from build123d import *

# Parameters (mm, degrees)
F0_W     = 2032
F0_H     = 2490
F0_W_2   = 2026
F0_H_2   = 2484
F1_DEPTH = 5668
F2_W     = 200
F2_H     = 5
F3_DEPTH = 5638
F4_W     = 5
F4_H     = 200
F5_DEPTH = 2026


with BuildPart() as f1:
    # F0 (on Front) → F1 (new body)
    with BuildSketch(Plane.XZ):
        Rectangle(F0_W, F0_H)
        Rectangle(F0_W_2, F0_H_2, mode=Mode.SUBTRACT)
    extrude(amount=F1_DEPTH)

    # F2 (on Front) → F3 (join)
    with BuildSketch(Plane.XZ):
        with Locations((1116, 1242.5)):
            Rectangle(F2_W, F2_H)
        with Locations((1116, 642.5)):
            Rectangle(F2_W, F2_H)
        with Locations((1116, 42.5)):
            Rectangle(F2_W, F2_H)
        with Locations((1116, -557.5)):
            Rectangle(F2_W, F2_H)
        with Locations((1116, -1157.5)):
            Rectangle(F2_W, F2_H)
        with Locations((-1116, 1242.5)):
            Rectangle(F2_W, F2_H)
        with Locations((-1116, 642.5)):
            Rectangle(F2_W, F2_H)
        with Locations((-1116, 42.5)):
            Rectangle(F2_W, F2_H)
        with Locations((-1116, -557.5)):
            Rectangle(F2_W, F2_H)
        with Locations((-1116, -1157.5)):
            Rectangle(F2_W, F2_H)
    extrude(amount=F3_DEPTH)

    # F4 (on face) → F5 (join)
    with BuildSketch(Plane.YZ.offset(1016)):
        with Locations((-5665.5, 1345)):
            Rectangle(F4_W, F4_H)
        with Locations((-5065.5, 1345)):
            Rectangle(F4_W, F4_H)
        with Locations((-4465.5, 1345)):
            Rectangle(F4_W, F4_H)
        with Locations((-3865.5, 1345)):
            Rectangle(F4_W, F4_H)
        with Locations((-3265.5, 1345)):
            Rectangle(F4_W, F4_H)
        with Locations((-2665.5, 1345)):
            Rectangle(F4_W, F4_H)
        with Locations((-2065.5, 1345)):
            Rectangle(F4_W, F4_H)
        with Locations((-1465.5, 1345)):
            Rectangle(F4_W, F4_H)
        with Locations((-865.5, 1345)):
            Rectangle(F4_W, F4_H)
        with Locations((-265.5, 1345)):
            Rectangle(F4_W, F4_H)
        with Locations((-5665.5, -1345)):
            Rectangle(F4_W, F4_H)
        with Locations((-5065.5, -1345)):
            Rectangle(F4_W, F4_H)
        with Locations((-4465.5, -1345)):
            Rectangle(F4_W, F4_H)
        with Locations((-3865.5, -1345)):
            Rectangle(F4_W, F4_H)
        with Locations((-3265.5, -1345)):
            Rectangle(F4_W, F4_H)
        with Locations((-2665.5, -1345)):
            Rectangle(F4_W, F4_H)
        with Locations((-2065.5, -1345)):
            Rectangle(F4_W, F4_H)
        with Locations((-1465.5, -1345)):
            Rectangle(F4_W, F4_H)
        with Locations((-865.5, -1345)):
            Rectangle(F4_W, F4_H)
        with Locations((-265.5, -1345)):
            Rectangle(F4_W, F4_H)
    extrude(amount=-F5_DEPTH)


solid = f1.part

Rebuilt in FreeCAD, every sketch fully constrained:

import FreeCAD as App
import Part
import Sketcher
Q = App.Units.Quantity


def add_polygon(sketch, points):
    """Adds a closed chain of lines whose ends are joined by coincident constraints."""
    first, n = sketch.GeometryCount, len(points)
    for a, b in zip(points, points[1:] + points[:1]):
        sketch.addGeometry(Part.LineSegment(App.Vector(*a, 0), App.Vector(*b, 0)), False)
    for i in range(n):
        sketch.addConstraint(Sketcher.Constraint("Coincident", first + i, 2, first + (i + 1) % n, 1))

doc = App.newDocument("Part")
body = doc.addObject("PartDesign::Body", "Body")

sketch1 = doc.addObject("Sketcher::SketchObject", "Sketch")
body.addObject(sketch1)
sketch1.AttachmentSupport = (doc.XZ_Plane, [""])
sketch1.MapMode = "FlatFace"
add_polygon(sketch1, [(-1016, 1245), (-1016, -1245), (1016, -1245), (1016, 1245)])
add_polygon(sketch1, [(1013, -1242), (-1013, -1242), (-1013, 1242), (1013, 1242)])
sketch1.addConstraint([
    Sketcher.Constraint("Vertical", 0),
    Sketcher.Constraint("Horizontal", 1),
    Sketcher.Constraint("Vertical", 2),
    Sketcher.Constraint("Horizontal", 3),
    Sketcher.Constraint("Horizontal", 4),
    Sketcher.Constraint("Vertical", 5),
    Sketcher.Constraint("Horizontal", 6),
    Sketcher.Constraint("Vertical", 7),
    Sketcher.Constraint("Symmetric", 0, 2, 2, 2, -1, 1),
    Sketcher.Constraint("Symmetric", 4, 2, 6, 2, -1, 1),
    Sketcher.Constraint("DistanceX", 1, 1, 1, 2, Q("2032 mm")),
    Sketcher.Constraint("DistanceX", 4, 2, 4, 1, Q("2026 mm")),
    Sketcher.Constraint("DistanceY", 0, 2, 0, 1, Q("2490 mm")),
    Sketcher.Constraint("DistanceY", 5, 1, 5, 2, Q("2484 mm")),
])
pad1 = doc.addObject("PartDesign::Pad", "Pad")
body.addObject(pad1)
pad1.Profile = sketch1
pad1.Length = 5668

sketch2 = doc.addObject("Sketcher::SketchObject", "Sketch001")
body.addObject(sketch2)
sketch2.AttachmentSupport = (doc.XZ_Plane, [""])
sketch2.MapMode = "FlatFace"
add_polygon(sketch2, [(1016, 1245), (1016, 1240), (1216, 1240), (1216, 1245)])
add_polygon(sketch2, [(1016, 645), (1016, 640), (1216, 640), (1216, 645)])
add_polygon(sketch2, [(1016, 45), (1016, 40), (1216, 40), (1216, 45)])
add_polygon(sketch2, [(1016, -555), (1016, -560), (1216, -560), (1216, -555)])
add_polygon(sketch2, [(1016, -1155), (1016, -1160), (1216, -1160), (1216, -1155)])
add_polygon(sketch2, [(-1216, 1245), (-1216, 1240), (-1016, 1240), (-1016, 1245)])
add_polygon(sketch2, [(-1216, 645), (-1216, 640), (-1016, 640), (-1016, 645)])
add_polygon(sketch2, [(-1216, 45), (-1216, 40), (-1016, 40), (-1016, 45)])
add_polygon(sketch2, [(-1216, -555), (-1216, -560), (-1016, -560), (-1016, -555)])
add_polygon(sketch2, [(-1216, -1155), (-1216, -1160), (-1016, -1160), (-1016, -1155)])
sketch2.addConstraint([
    Sketcher.Constraint("Vertical", 0),
    Sketcher.Constraint("Horizontal", 1),
    Sketcher.Constraint("Vertical", 2),
    Sketcher.Constraint("Horizontal", 3),
    Sketcher.Constraint("Vertical", 4),
    Sketcher.Constraint("Horizontal", 5),
    Sketcher.Constraint("Vertical", 6),
    Sketcher.Constraint("Horizontal", 7),
    Sketcher.Constraint("Vertical", 8),
    Sketcher.Constraint("Horizontal", 9),
    Sketcher.Constraint("Vertical", 10),
    Sketcher.Constraint("Horizontal", 11),
    Sketcher.Constraint("Vertical", 12),
    Sketcher.Constraint("Horizontal", 13),
    Sketcher.Constraint("Vertical", 14),
    Sketcher.Constraint("Horizontal", 15),
    Sketcher.Constraint("Vertical", 16),
    Sketcher.Constraint("Horizontal", 17),
    Sketcher.Constraint("Vertical", 18),
    Sketcher.Constraint("Horizontal", 19),
    Sketcher.Constraint("Vertical", 20),
    Sketcher.Constraint("Horizontal", 21),
    Sketcher.Constraint("Vertical", 22),
    Sketcher.Constraint("Horizontal", 23),
    Sketcher.Constraint("Vertical", 24),
    Sketcher.Constraint("Horizontal", 25),
    Sketcher.Constraint("Vertical", 26),
    Sketcher.Constraint("Horizontal", 27),
    Sketcher.Constraint("Vertical", 28),
    Sketcher.Constraint("Horizontal", 29),
    Sketcher.Constraint("Vertical", 30),
    Sketcher.Constraint("Horizontal", 31),
    Sketcher.Constraint("Vertical", 32),
    Sketcher.Constraint("Horizontal", 33),
    Sketcher.Constraint("Vertical", 34),
    Sketcher.Constraint("Horizontal", 35),
    Sketcher.Constraint("Vertical", 36),
    Sketcher.Constraint("Horizontal", 37),
    Sketcher.Constraint("Vertical", 38),
    Sketcher.Constraint("Horizontal", 39),
    Sketcher.Constraint("Symmetric", 1, 2, 20, 2, -2),
    Sketcher.Constraint("Symmetric", 3, 2, 22, 2, -2),
    Sketcher.Constraint("Symmetric", 5, 2, 24, 2, -2),
    Sketcher.Constraint("Symmetric", 7, 2, 26, 2, -2),
    Sketcher.Constraint("Symmetric", 9, 2, 28, 2, -2),
    Sketcher.Constraint("Symmetric", 11, 2, 30, 2, -2),
    Sketcher.Constraint("Symmetric", 13, 2, 32, 2, -2),
    Sketcher.Constraint("Symmetric", 15, 2, 34, 2, -2),
    Sketcher.Constraint("Symmetric", 17, 2, 36, 2, -2),
    Sketcher.Constraint("Symmetric", 19, 2, 38, 2, -2),
    Sketcher.Constraint("Vertical", 3, 2, 4, 2),
    Sketcher.Constraint("Vertical", 2, 2, 5, 2),
    Sketcher.Constraint("Vertical", 7, 2, 8, 2),
    Sketcher.Constraint("Vertical", 6, 2, 9, 2),
    Sketcher.Constraint("Vertical", 11, 2, 12, 2),
    Sketcher.Constraint("Vertical", 10, 2, 13, 2),
    Sketcher.Constraint("Vertical", 15, 2, 16, 2),
    Sketcher.Constraint("Vertical", 14, 2, 17, 2),
    Sketcher.Constraint("Equal", 2, 4),
    Sketcher.Constraint("Equal", 6, 8),
    Sketcher.Constraint("Equal", 10, 12),
    Sketcher.Constraint("Equal", 14, 16),
    Sketcher.Constraint("DistanceX", 1, 1, 1, 2, Q("200 mm")),
    Sketcher.Constraint("DistanceY", 0, 2, 0, 1, Q("5 mm")),
    Sketcher.Constraint("DistanceX", -1, 1, 0, 2, Q("1016 mm")),
    Sketcher.Constraint("DistanceY", -1, 1, 0, 2, Q("1240 mm")),
    Sketcher.Constraint("DistanceY", -1, 1, 4, 2, Q("640 mm")),
    Sketcher.Constraint("DistanceY", -1, 1, 8, 2, Q("40 mm")),
    Sketcher.Constraint("DistanceY", 12, 2, -1, 1, Q("560 mm")),
    Sketcher.Constraint("DistanceY", 16, 2, -1, 1, Q("1160 mm")),
])
pad2 = doc.addObject("PartDesign::Pad", "Pad001")
body.addObject(pad2)
pad2.Profile = sketch2
pad2.Length = 5638

sketch3 = doc.addObject("Sketcher::SketchObject", "Sketch002")
body.addObject(sketch3)
sketch3.AttachmentSupport = (doc.YZ_Plane, [""])
sketch3.MapMode = "FlatFace"
sketch3.AttachmentOffset = App.Placement(App.Vector(0, 0, 1016), App.Rotation())
add_polygon(sketch3, [(-5668, 1445), (-5668, 1245), (-5663, 1245), (-5663, 1445)])
add_polygon(sketch3, [(-5068, 1445), (-5068, 1245), (-5063, 1245), (-5063, 1445)])
add_polygon(sketch3, [(-4468, 1445), (-4468, 1245), (-4463, 1245), (-4463, 1445)])
add_polygon(sketch3, [(-3868, 1445), (-3868, 1245), (-3863, 1245), (-3863, 1445)])
add_polygon(sketch3, [(-3268, 1445), (-3268, 1245), (-3263, 1245), (-3263, 1445)])
add_polygon(sketch3, [(-2668, 1445), (-2668, 1245), (-2663, 1245), (-2663, 1445)])
add_polygon(sketch3, [(-2068, 1445), (-2068, 1245), (-2063, 1245), (-2063, 1445)])
add_polygon(sketch3, [(-1468, 1445), (-1468, 1245), (-1463, 1245), (-1463, 1445)])
add_polygon(sketch3, [(-868, 1445), (-868, 1245), (-863, 1245), (-863, 1445)])
add_polygon(sketch3, [(-268, 1445), (-268, 1245), (-263, 1245), (-263, 1445)])
add_polygon(sketch3, [(-5668, -1245), (-5668, -1445), (-5663, -1445), (-5663, -1245)])
add_polygon(sketch3, [(-5068, -1245), (-5068, -1445), (-5063, -1445), (-5063, -1245)])
add_polygon(sketch3, [(-4468, -1245), (-4468, -1445), (-4463, -1445), (-4463, -1245)])
add_polygon(sketch3, [(-3868, -1245), (-3868, -1445), (-3863, -1445), (-3863, -1245)])
add_polygon(sketch3, [(-3268, -1245), (-3268, -1445), (-3263, -1445), (-3263, -1245)])
add_polygon(sketch3, [(-2668, -1245), (-2668, -1445), (-2663, -1445), (-2663, -1245)])
add_polygon(sketch3, [(-2068, -1245), (-2068, -1445), (-2063, -1445), (-2063, -1245)])
add_polygon(sketch3, [(-1468, -1245), (-1468, -1445), (-1463, -1445), (-1463, -1245)])
add_polygon(sketch3, [(-868, -1245), (-868, -1445), (-863, -1445), (-863, -1245)])
add_polygon(sketch3, [(-268, -1245), (-268, -1445), (-263, -1445), (-263, -1245)])
sketch3.addConstraint([
    Sketcher.Constraint("Vertical", 0),
    Sketcher.Constraint("Horizontal", 1),
    Sketcher.Constraint("Vertical", 2),
    Sketcher.Constraint("Horizontal", 3),
    Sketcher.Constraint("Vertical", 4),
    Sketcher.Constraint("Horizontal", 5),
    Sketcher.Constraint("Vertical", 6),
    Sketcher.Constraint("Horizontal", 7),
    Sketcher.Constraint("Vertical", 8),
    Sketcher.Constraint("Horizontal", 9),
    Sketcher.Constraint("Vertical", 10),
    Sketcher.Constraint("Horizontal", 11),
    Sketcher.Constraint("Vertical", 12),
    Sketcher.Constraint("Horizontal", 13),
    Sketcher.Constraint("Vertical", 14),
    Sketcher.Constraint("Horizontal", 15),
    Sketcher.Constraint("Vertical", 16),
    Sketcher.Constraint("Horizontal", 17),
    Sketcher.Constraint("Vertical", 18),
    Sketcher.Constraint("Horizontal", 19),
    Sketcher.Constraint("Vertical", 20),
    Sketcher.Constraint("Horizontal", 21),
    Sketcher.Constraint("Vertical", 22),
    Sketcher.Constraint("Horizontal", 23),
    Sketcher.Constraint("Vertical", 24),
    Sketcher.Constraint("Horizontal", 25),
    Sketcher.Constraint("Vertical", 26),
    Sketcher.Constraint("Horizontal", 27),
    Sketcher.Constraint("Vertical", 28),
    Sketcher.Constraint("Horizontal", 29),
    Sketcher.Constraint("Vertical", 30),
    Sketcher.Constraint("Horizontal", 31),
    Sketcher.Constraint("Vertical", 32),
    Sketcher.Constraint("Horizontal", 33),
    Sketcher.Constraint("Vertical", 34),
    Sketcher.Constraint("Horizontal", 35),
    Sketcher.Constraint("Vertical", 36),
    Sketcher.Constraint("Horizontal", 37),
    Sketcher.Constraint("Vertical", 38),
    Sketcher.Constraint("Horizontal", 39),
    Sketcher.Constraint("Vertical", 40),
    Sketcher.Constraint("Horizontal", 41),
    Sketcher.Constraint("Vertical", 42),
    Sketcher.Constraint("Horizontal", 43),
    Sketcher.Constraint("Vertical", 44),
    Sketcher.Constraint("Horizontal", 45),
    Sketcher.Constraint("Vertical", 46),
    Sketcher.Constraint("Horizontal", 47),
    Sketcher.Constraint("Vertical", 48),
    Sketcher.Constraint("Horizontal", 49),
    Sketcher.Constraint("Vertical", 50),
    Sketcher.Constraint("Horizontal", 51),
    Sketcher.Constraint("Vertical", 52),
    Sketcher.Constraint("Horizontal", 53),
    Sketcher.Constraint("Vertical", 54),
    Sketcher.Constraint("Horizontal", 55),
    Sketcher.Constraint("Vertical", 56),
    Sketcher.Constraint("Horizontal", 57),
    Sketcher.Constraint("Vertical", 58),
    Sketcher.Constraint("Horizontal", 59),
    Sketcher.Constraint("Vertical", 60),
    Sketcher.Constraint("Horizontal", 61),
    Sketcher.Constraint("Vertical", 62),
    Sketcher.Constraint("Horizontal", 63),
    Sketcher.Constraint("Vertical", 64),
    Sketcher.Constraint("Horizontal", 65),
    Sketcher.Constraint("Vertical", 66),
    Sketcher.Constraint("Horizontal", 67),
    Sketcher.Constraint("Vertical", 68),
    Sketcher.Constraint("Horizontal", 69),
    Sketcher.Constraint("Vertical", 70),
    Sketcher.Constraint("Horizontal", 71),
    Sketcher.Constraint("Vertical", 72),
    Sketcher.Constraint("Horizontal", 73),
    Sketcher.Constraint("Vertical", 74),
    Sketcher.Constraint("Horizontal", 75),
    Sketcher.Constraint("Vertical", 76),
    Sketcher.Constraint("Horizontal", 77),
    Sketcher.Constraint("Vertical", 78),
    Sketcher.Constraint("Horizontal", 79),
    Sketcher.Constraint("Symmetric", 3, 2, 40, 2, -1),
    Sketcher.Constraint("Symmetric", 1, 2, 42, 2, -1),
    Sketcher.Constraint("Symmetric", 7, 2, 44, 2, -1),
    Sketcher.Constraint("Symmetric", 5, 2, 46, 2, -1),
    Sketcher.Constraint("Symmetric", 11, 2, 48, 2, -1),
    Sketcher.Constraint("Symmetric", 9, 2, 50, 2, -1),
    Sketcher.Constraint("Symmetric", 15, 2, 52, 2, -1),
    Sketcher.Constraint("Symmetric", 13, 2, 54, 2, -1),
    Sketcher.Constraint("Symmetric", 19, 2, 56, 2, -1),
    Sketcher.Constraint("Symmetric", 17, 2, 58, 2, -1),
    Sketcher.Constraint("Symmetric", 23, 2, 60, 2, -1),
    Sketcher.Constraint("Symmetric", 21, 2, 62, 2, -1),
    Sketcher.Constraint("Symmetric", 27, 2, 64, 2, -1),
    Sketcher.Constraint("Symmetric", 25, 2, 66, 2, -1),
    Sketcher.Constraint("Symmetric", 31, 2, 68, 2, -1),
    Sketcher.Constraint("Symmetric", 29, 2, 70, 2, -1),
    Sketcher.Constraint("Symmetric", 35, 2, 72, 2, -1),
    Sketcher.Constraint("Symmetric", 33, 2, 74, 2, -1),
    Sketcher.Constraint("Symmetric", 39, 2, 76, 2, -1),
    Sketcher.Constraint("Symmetric", 37, 2, 78, 2, -1),
    Sketcher.Constraint("Horizontal", 1, 2, 4, 2),
    Sketcher.Constraint("Horizontal", 3, 2, 6, 2),
    Sketcher.Constraint("Horizontal", 5, 2, 8, 2),
    Sketcher.Constraint("Horizontal", 7, 2, 10, 2),
    Sketcher.Constraint("Horizontal", 9, 2, 12, 2),
    Sketcher.Constraint("Horizontal", 11, 2, 14, 2),
    Sketcher.Constraint("Horizontal", 13, 2, 16, 2),
    Sketcher.Constraint("Horizontal", 15, 2, 18, 2),
    Sketcher.Constraint("Horizontal", 17, 2, 20, 2),
    Sketcher.Constraint("Horizontal", 19, 2, 22, 2),
    Sketcher.Constraint("Horizontal", 21, 2, 24, 2),
    Sketcher.Constraint("Horizontal", 23, 2, 26, 2),
    Sketcher.Constraint("Horizontal", 25, 2, 28, 2),
    Sketcher.Constraint("Horizontal", 27, 2, 30, 2),
    Sketcher.Constraint("Horizontal", 29, 2, 32, 2),
    Sketcher.Constraint("Horizontal", 31, 2, 34, 2),
    Sketcher.Constraint("Horizontal", 33, 2, 36, 2),
    Sketcher.Constraint("Horizontal", 35, 2, 38, 2),
    Sketcher.Constraint("Equal", 3, 5),
    Sketcher.Constraint("Equal", 7, 9),
    Sketcher.Constraint("Equal", 11, 13),
    Sketcher.Constraint("Equal", 15, 17),
    Sketcher.Constraint("Equal", 19, 21),
    Sketcher.Constraint("Equal", 23, 25),
    Sketcher.Constraint("Equal", 27, 29),
    Sketcher.Constraint("Equal", 31, 33),
    Sketcher.Constraint("Equal", 35, 37),
    Sketcher.Constraint("DistanceX", 1, 1, 1, 2, Q("5 mm")),
    Sketcher.Constraint("DistanceY", 0, 2, 0, 1, Q("200 mm")),
    Sketcher.Constraint("DistanceX", 0, 2, -1, 1, Q("5668 mm")),
    Sketcher.Constraint("DistanceY", -1, 1, 0, 2, Q("1245 mm")),
    Sketcher.Constraint("DistanceX", 4, 2, -1, 1, Q("5068 mm")),
    Sketcher.Constraint("DistanceX", 8, 2, -1, 1, Q("4468 mm")),
    Sketcher.Constraint("DistanceX", 12, 2, -1, 1, Q("3868 mm")),
    Sketcher.Constraint("DistanceX", 16, 2, -1, 1, Q("3268 mm")),
    Sketcher.Constraint("DistanceX", 20, 2, -1, 1, Q("2668 mm")),
    Sketcher.Constraint("DistanceX", 24, 2, -1, 1, Q("2068 mm")),
    Sketcher.Constraint("DistanceX", 28, 2, -1, 1, Q("1468 mm")),
    Sketcher.Constraint("DistanceX", 32, 2, -1, 1, Q("868 mm")),
    Sketcher.Constraint("DistanceX", 36, 2, -1, 1, Q("268 mm")),
])
pad3 = doc.addObject("PartDesign::Pad", "Pad002")
body.addObject(pad3)
pad3.Profile = sketch3
pad3.Length = 2026
pad3.Reversed = True

doc.recompute()
